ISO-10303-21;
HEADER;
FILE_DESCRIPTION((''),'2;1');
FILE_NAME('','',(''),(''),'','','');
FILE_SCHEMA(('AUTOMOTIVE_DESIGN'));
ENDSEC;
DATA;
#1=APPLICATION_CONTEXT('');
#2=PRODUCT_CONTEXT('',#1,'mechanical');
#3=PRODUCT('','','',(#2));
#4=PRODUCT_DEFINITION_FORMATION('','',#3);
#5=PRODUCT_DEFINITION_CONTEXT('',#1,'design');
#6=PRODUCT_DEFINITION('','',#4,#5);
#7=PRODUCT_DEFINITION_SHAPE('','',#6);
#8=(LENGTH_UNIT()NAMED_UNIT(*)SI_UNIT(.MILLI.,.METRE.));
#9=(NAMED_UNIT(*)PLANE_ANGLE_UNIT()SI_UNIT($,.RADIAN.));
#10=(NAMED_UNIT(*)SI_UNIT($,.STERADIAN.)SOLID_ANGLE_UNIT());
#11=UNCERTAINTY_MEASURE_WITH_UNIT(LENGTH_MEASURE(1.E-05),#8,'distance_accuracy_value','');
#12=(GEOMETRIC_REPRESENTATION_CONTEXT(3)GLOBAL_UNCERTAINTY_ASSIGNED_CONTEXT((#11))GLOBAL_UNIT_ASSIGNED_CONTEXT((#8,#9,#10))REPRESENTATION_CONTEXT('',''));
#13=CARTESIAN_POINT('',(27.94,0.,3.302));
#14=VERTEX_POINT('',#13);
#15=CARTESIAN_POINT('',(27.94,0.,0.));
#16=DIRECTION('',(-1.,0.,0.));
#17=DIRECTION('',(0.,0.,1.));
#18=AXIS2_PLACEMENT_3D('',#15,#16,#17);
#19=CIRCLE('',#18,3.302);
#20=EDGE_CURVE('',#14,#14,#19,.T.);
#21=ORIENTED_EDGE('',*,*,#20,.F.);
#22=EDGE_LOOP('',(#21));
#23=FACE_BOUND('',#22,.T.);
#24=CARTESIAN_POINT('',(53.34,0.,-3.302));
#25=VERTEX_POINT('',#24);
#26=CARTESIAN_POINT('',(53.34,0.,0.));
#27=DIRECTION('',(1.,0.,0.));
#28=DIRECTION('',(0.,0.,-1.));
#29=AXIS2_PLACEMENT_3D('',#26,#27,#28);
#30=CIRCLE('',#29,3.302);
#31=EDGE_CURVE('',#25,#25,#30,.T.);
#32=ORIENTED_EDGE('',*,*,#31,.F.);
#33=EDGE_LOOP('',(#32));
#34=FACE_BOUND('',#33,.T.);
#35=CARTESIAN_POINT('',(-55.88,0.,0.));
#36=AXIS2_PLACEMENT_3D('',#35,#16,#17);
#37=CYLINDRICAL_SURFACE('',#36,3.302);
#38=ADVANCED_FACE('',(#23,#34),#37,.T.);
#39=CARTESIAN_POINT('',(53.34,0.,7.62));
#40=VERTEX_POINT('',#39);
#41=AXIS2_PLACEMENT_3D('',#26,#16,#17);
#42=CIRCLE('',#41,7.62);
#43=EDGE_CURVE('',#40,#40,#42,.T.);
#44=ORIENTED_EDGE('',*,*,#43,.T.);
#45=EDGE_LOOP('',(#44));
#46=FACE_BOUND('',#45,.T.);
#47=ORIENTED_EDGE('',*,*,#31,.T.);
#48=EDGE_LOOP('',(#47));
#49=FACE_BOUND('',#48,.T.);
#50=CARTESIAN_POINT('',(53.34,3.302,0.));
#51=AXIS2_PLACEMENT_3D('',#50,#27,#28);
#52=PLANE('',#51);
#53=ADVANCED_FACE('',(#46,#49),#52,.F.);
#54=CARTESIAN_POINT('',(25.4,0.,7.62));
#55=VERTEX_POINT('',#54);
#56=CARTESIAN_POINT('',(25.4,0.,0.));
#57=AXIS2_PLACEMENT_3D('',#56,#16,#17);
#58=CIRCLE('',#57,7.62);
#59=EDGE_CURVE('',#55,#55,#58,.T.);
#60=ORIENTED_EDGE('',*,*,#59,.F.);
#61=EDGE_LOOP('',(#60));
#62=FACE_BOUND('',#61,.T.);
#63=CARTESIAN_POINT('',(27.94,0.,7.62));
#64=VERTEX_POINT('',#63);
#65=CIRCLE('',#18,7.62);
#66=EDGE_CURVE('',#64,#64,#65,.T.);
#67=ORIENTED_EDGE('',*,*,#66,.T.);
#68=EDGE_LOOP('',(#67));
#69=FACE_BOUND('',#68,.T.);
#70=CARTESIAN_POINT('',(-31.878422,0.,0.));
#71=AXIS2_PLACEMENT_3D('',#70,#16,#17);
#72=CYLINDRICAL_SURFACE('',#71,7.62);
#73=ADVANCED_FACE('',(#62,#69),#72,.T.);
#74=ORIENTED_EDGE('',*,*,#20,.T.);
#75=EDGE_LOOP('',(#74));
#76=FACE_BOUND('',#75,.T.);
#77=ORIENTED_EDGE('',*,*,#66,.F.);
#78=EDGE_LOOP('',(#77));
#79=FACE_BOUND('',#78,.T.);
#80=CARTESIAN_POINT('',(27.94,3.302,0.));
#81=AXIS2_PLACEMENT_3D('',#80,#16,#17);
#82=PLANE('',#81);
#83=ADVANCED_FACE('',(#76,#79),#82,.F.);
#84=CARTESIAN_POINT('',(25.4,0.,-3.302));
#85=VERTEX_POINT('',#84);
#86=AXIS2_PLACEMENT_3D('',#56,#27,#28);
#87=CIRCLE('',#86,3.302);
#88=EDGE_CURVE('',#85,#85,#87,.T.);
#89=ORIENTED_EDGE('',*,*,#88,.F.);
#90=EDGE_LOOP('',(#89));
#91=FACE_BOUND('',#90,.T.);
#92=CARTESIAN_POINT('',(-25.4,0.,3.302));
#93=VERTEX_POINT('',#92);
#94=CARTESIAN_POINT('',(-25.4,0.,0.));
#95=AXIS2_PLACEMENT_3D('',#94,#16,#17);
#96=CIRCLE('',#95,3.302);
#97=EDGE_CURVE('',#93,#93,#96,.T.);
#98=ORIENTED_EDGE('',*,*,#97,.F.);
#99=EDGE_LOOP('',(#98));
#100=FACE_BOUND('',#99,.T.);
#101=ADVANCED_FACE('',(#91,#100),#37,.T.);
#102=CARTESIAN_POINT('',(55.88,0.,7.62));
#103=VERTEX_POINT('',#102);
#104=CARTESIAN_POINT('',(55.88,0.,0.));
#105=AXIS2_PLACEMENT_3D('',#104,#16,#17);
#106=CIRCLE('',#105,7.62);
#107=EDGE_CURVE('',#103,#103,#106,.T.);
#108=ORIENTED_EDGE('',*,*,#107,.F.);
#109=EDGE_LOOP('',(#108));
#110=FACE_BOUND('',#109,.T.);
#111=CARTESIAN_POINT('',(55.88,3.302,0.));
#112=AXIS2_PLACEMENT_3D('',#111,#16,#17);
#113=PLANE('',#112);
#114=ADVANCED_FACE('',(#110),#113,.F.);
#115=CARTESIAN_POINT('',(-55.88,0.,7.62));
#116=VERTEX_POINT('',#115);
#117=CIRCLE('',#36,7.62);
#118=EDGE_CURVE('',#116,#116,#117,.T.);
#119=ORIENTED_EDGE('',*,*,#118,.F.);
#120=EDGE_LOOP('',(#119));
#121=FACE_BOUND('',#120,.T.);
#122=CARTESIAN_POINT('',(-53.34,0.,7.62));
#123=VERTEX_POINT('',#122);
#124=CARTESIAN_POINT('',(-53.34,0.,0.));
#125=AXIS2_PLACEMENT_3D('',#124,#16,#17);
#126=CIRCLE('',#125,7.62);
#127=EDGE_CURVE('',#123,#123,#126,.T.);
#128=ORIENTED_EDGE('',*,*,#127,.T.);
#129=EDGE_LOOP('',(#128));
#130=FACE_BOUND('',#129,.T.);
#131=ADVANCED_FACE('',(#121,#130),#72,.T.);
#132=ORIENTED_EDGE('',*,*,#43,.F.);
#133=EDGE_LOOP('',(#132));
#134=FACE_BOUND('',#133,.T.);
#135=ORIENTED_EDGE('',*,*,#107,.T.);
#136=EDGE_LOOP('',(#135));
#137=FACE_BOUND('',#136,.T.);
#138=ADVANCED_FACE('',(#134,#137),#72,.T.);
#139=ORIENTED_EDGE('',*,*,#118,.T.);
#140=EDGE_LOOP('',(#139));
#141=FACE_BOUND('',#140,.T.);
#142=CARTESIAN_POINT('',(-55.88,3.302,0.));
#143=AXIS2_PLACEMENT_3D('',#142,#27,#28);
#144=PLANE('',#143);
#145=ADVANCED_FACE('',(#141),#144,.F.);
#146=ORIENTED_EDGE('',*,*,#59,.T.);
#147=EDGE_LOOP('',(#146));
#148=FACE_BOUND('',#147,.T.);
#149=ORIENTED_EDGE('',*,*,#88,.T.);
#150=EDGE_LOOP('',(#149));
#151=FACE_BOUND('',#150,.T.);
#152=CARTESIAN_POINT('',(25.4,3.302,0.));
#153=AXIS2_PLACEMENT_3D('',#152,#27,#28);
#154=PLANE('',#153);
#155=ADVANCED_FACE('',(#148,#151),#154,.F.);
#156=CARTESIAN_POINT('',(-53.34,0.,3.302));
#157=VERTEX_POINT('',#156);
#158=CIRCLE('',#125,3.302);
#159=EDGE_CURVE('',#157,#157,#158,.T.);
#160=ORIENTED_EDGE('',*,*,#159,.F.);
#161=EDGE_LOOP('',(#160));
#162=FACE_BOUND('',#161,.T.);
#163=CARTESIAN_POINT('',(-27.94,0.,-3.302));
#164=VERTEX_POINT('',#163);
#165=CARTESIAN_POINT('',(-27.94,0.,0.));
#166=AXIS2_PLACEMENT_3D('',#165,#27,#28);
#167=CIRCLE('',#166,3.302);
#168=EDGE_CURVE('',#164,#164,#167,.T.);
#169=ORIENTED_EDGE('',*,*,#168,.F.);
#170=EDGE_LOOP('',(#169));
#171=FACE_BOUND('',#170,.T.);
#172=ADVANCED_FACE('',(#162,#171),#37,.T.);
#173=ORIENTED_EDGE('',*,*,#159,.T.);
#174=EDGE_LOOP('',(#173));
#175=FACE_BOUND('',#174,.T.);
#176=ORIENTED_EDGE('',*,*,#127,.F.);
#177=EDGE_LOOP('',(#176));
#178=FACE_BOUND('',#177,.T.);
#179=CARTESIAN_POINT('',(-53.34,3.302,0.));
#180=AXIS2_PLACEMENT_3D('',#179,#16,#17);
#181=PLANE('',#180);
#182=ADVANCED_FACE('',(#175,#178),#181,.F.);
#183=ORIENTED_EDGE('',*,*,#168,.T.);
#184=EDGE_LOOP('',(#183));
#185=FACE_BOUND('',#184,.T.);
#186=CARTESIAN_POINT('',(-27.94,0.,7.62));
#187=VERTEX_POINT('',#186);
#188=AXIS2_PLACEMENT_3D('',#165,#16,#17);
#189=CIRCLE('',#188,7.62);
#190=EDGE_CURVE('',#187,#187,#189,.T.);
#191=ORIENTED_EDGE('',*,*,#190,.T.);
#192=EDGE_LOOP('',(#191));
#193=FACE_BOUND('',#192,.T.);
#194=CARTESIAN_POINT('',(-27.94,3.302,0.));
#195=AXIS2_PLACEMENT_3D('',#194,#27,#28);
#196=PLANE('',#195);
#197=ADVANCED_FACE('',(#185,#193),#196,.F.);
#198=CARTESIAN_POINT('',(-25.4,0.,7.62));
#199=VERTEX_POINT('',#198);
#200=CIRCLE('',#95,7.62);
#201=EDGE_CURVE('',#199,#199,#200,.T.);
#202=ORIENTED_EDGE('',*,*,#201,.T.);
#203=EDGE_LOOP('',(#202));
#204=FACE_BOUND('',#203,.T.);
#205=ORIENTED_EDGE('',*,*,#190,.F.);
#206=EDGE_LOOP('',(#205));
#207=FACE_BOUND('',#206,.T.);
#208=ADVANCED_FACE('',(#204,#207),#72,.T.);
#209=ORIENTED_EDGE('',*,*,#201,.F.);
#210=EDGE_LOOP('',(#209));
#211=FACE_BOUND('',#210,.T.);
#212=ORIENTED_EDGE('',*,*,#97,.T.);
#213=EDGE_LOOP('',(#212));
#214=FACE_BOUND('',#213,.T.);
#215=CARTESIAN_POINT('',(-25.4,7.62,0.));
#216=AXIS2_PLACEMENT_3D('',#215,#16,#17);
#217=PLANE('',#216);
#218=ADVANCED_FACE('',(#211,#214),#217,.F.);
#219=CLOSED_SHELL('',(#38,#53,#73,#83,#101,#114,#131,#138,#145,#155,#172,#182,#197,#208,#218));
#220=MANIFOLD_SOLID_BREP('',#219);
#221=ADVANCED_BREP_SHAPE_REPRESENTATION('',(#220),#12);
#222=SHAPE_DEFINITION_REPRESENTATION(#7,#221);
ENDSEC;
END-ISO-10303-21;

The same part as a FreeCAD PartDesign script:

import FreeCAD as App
import Part
import Sketcher
Q = App.Units.Quantity

doc = App.newDocument("Part")
body = doc.addObject("PartDesign::Body", "Body")

sketch1 = body.newObject("Sketcher::SketchObject", "Sketch")
sketch1.AttachmentSupport = (doc.getObject("XY_Plane"), [""])
sketch1.MapMode = "FlatFace"
sketch1.addGeometry([
    Part.LineSegment(App.Vector(-55.9, 3.3, 0), App.Vector(-55.9, 0, 0)),
    Part.LineSegment(App.Vector(-55.9, 0, 0), App.Vector(55.9, 0, 0)),
    Part.LineSegment(App.Vector(55.9, 0, 0), App.Vector(55.9, 3.3, 0)),
    Part.LineSegment(App.Vector(55.9, 3.3, 0), App.Vector(-55.9, 3.3, 0)),
], False)
sketch1.addConstraint([
    Sketcher.Constraint("Coincident", 0, 2, 1, 1),
    Sketcher.Constraint("Coincident", 1, 2, 2, 1),
    Sketcher.Constraint("Coincident", 2, 2, 3, 1),
    Sketcher.Constraint("Coincident", 3, 2, 0, 1),
    Sketcher.Constraint("Vertical", 0),
    Sketcher.Constraint("Horizontal", 1),
    Sketcher.Constraint("Vertical", 2),
    Sketcher.Constraint("Horizontal", 3),
    Sketcher.Constraint("Symmetric", 0, 2, 1, 2, -1, 1),
    Sketcher.Constraint("DistanceX", 1, 1, 1, 2, Q("4.4 in")),
    Sketcher.Constraint("DistanceY", 0, 2, 0, 1, Q("0.13 in")),
])
revolution = body.newObject("PartDesign::Revolution", "Revolution")
revolution.Profile = sketch1
revolution.ReferenceAxis = (sketch1, ["H_Axis"])
revolution.Angle = 360

sketch2 = body.newObject("Sketcher::SketchObject", "Sketch001")
sketch2.AttachmentSupport = (doc.getObject("XY_Plane"), [""])
sketch2.MapMode = "FlatFace"
sketch2.addGeometry([
    Part.LineSegment(App.Vector(-27.9, 7.6, 0), App.Vector(-27.9, 3.3, 0)),
    Part.LineSegment(App.Vector(-27.9, 3.3, 0), App.Vector(-25.4, 3.3, 0)),
    Part.LineSegment(App.Vector(-25.4, 3.3, 0), App.Vector(-25.4, 7.6, 0)),
    Part.LineSegment(App.Vector(-25.4, 7.6, 0), App.Vector(-27.9, 7.6, 0)),
    Part.LineSegment(App.Vector(25.4, 7.6, 0), App.Vector(25.4, 3.3, 0)),
    Part.LineSegment(App.Vector(25.4, 3.3, 0), App.Vector(27.9, 3.3, 0)),
    Part.LineSegment(App.Vector(27.9, 3.3, 0), App.Vector(27.9, 7.6, 0)),
    Part.LineSegment(App.Vector(27.9, 7.6, 0), App.Vector(25.4, 7.6, 0)),
    Part.LineSegment(App.Vector(-55.9, 7.6, 0), App.Vector(-55.9, 3.3, 0)),
    Part.LineSegment(App.Vector(-55.9, 3.3, 0), App.Vector(-53.3, 3.3, 0)),
    Part.LineSegment(App.Vector(-53.3, 3.3, 0), App.Vector(-53.3, 7.6, 0)),
    Part.LineSegment(App.Vector(-53.3, 7.6, 0), App.Vector(-55.9, 7.6, 0)),
    Part.LineSegment(App.Vector(53.3, 7.6, 0), App.Vector(53.3, 3.3, 0)),
    Part.LineSegment(App.Vector(53.3, 3.3, 0), App.Vector(55.9, 3.3, 0)),
    Part.LineSegment(App.Vector(55.9, 3.3, 0), App.Vector(55.9, 7.6, 0)),
    Part.LineSegment(App.Vector(55.9, 7.6, 0), App.Vector(53.3, 7.6, 0)),
], False)
sketch2.addConstraint([
    Sketcher.Constraint("Coincident", 0, 2, 1, 1),
    Sketcher.Constraint("Coincident", 1, 2, 2, 1),
    Sketcher.Constraint("Coincident", 2, 2, 3, 1),
    Sketcher.Constraint("Coincident", 3, 2, 0, 1),
    Sketcher.Constraint("Coincident", 4, 2, 5, 1),
    Sketcher.Constraint("Coincident", 5, 2, 6, 1),
    Sketcher.Constraint("Coincident", 6, 2, 7, 1),
    Sketcher.Constraint("Coincident", 7, 2, 4, 1),
    Sketcher.Constraint("Coincident", 8, 2, 9, 1),
    Sketcher.Constraint("Coincident", 9, 2, 10, 1),
    Sketcher.Constraint("Coincident", 10, 2, 11, 1),
    Sketcher.Constraint("Coincident", 11, 2, 8, 1),
    Sketcher.Constraint("Coincident", 12, 2, 13, 1),
    Sketcher.Constraint("Coincident", 13, 2, 14, 1),
    Sketcher.Constraint("Coincident", 14, 2, 15, 1),
    Sketcher.Constraint("Coincident", 15, 2, 12, 1),
    Sketcher.Constraint("Vertical", 0),
    Sketcher.Constraint("Horizontal", 1),
    Sketcher.Constraint("Vertical", 2),
    Sketcher.Constraint("Horizontal", 3),
    Sketcher.Constraint("Vertical", 4),
    Sketcher.Constraint("Horizontal", 5),
    Sketcher.Constraint("Vertical", 6),
    Sketcher.Constraint("Horizontal", 7),
    Sketcher.Constraint("Vertical", 8),
    Sketcher.Constraint("Horizontal", 9),
    Sketcher.Constraint("Vertical", 10),
    Sketcher.Constraint("Horizontal", 11),
    Sketcher.Constraint("Vertical", 12),
    Sketcher.Constraint("Horizontal", 13),
    Sketcher.Constraint("Vertical", 14),
    Sketcher.Constraint("Horizontal", 15),
    Sketcher.Constraint("Symmetric", 1, 2, 4, 2, -2),
    Sketcher.Constraint("Symmetric", 3, 2, 6, 2, -2),
    Sketcher.Constraint("Symmetric", 9, 2, 12, 2, -2),
    Sketcher.Constraint("Symmetric", 11, 2, 14, 2, -2),
    Sketcher.Constraint("Horizontal", 5, 2, 8, 2),
    Sketcher.Constraint("Horizontal", 7, 2, 10, 2),
    Sketcher.Constraint("Equal", 7, 9),
    Sketcher.Constraint("DistanceX", 1, 1, 1, 2, Q("0.1 in")),
    Sketcher.Constraint("DistanceX", 1, 2, -1, 1, Q("1 in")),
    Sketcher.Constraint("DistanceX", 9, 2, 0, 2, Q("1 in")),
    Sketcher.Constraint("DistanceY", 0, 2, 0, 1, Q("0.17 in")),
    Sketcher.Constraint("DistanceY", -1, 1, 2, 2, Q("0.3 in")),
])
revolution2 = body.newObject("PartDesign::Revolution", "Revolution001")
revolution2.Profile = sketch2
revolution2.ReferenceAxis = (sketch2, ["H_Axis"])
revolution2.Angle = 360

doc.recompute()
